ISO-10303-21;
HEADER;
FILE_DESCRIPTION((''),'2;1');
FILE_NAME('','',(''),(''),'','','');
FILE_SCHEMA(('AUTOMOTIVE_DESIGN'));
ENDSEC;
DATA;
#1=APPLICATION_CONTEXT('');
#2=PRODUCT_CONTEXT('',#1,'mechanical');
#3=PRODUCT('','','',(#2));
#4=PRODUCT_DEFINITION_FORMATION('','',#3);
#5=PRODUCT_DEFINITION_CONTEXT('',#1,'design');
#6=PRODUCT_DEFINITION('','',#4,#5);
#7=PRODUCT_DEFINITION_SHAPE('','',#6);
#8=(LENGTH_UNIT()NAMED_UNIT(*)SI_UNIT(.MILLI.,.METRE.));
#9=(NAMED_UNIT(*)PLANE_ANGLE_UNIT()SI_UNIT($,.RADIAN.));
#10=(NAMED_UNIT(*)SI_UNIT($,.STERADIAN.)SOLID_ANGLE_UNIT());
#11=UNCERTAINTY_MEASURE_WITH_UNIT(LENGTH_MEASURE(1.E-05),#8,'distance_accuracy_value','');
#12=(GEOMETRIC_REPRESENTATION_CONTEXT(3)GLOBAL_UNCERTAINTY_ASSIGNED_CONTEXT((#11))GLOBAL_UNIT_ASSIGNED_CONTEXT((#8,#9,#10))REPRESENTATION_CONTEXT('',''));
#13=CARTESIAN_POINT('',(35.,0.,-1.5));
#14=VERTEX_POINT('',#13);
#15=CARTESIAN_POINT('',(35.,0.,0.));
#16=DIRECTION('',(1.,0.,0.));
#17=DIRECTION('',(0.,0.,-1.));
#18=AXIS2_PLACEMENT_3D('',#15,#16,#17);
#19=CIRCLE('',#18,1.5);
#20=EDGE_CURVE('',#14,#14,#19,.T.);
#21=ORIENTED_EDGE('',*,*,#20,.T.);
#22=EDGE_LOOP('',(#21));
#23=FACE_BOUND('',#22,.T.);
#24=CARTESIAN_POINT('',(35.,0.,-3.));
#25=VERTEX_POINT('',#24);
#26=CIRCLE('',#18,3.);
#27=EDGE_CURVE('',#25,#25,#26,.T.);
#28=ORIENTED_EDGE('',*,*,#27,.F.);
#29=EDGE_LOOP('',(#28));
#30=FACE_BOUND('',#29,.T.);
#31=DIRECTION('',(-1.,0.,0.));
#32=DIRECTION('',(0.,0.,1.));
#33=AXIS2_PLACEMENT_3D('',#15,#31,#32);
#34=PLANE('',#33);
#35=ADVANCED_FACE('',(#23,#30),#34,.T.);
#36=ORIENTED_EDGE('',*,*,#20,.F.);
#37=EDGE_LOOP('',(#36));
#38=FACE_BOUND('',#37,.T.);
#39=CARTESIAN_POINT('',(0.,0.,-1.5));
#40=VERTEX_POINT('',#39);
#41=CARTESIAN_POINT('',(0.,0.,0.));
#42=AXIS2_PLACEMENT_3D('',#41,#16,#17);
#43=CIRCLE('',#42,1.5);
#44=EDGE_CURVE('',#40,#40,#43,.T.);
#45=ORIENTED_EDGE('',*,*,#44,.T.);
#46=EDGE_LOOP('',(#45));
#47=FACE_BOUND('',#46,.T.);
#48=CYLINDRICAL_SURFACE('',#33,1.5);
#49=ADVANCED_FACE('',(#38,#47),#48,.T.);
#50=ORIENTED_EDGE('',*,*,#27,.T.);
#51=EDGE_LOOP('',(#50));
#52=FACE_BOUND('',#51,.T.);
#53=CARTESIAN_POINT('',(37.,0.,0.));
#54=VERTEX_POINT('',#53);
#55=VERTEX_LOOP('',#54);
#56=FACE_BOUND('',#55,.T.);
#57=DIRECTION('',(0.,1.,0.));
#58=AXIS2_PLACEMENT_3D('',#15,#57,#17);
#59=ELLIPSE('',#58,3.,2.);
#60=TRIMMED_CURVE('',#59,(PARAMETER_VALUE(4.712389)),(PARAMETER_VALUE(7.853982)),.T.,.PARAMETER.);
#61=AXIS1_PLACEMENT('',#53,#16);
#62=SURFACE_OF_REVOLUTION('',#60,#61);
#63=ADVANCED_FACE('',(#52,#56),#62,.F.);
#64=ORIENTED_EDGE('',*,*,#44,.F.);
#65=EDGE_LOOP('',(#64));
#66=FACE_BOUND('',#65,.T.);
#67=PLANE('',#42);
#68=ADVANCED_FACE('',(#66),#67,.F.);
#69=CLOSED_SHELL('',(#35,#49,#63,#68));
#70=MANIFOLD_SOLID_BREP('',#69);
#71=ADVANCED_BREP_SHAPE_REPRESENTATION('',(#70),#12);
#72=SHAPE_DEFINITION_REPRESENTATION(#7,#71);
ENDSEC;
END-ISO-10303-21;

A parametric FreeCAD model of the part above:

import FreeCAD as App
import Part
import Sketcher

V = App.Vector
Q = App.Units.Quantity

doc = App.newDocument("Part")
body = doc.addObject("PartDesign::Body", "Body")

# Sketch on YZ plane
sketch1 = body.newObject("Sketcher::SketchObject", "Sketch")
sketch1.AttachmentSupport = (doc.getObject("YZ_Plane"), [""])
sketch1.MapMode = "FlatFace"
sketch1.addGeometry(Part.Circle(V(0, 0, 0), V(0, 0, 1), 1.5), False)
sketch1.addConstraint([
    Sketcher.Constraint("Coincident", 0, 3, -1, 1),
    Sketcher.Constraint("Diameter", 0, Q("3 mm")),
])
pad1 = body.newObject("PartDesign::Pad", "Pad")
pad1.Profile = sketch1
pad1.Length = 35

# Sketch on XZ plane
sketch2 = body.newObject("Sketcher::SketchObject", "Sketch001")
sketch2.AttachmentSupport = (doc.getObject("XZ_Plane"), [""])
sketch2.MapMode = "FlatFace"
sketch2.addGeometry([
    Part.LineSegment(V(35, -3, 0), V(35, 0, 0)),
    Part.LineSegment(V(35, 0, 0), V(37, 0, 0)),
    Part.BSplineCurve([V(37, 0, 0), V(37, -3, 0), V(35, -3, 0)], [3, 3], [4.71238898, 6.283185307], False, 2, [1, 0.707106781, 1], False),
], False)
sketch2.addConstraint([
    Sketcher.Constraint("Block", 2),
    Sketcher.Constraint("Coincident", 0, 2, 1, 1),
    Sketcher.Constraint("Coincident", 1, 2, 2, 1),
    Sketcher.Constraint("Coincident", 2, 2, 0, 1),
    Sketcher.Constraint("Vertical", 0),
    Sketcher.Constraint("Horizontal", 1),
])
revolution = body.newObject("PartDesign::Revolution", "Revolution")
revolution.Profile = sketch2
revolution.ReferenceAxis = (sketch2, ["H_Axis"])
revolution.Angle = 360

doc.recompute()
